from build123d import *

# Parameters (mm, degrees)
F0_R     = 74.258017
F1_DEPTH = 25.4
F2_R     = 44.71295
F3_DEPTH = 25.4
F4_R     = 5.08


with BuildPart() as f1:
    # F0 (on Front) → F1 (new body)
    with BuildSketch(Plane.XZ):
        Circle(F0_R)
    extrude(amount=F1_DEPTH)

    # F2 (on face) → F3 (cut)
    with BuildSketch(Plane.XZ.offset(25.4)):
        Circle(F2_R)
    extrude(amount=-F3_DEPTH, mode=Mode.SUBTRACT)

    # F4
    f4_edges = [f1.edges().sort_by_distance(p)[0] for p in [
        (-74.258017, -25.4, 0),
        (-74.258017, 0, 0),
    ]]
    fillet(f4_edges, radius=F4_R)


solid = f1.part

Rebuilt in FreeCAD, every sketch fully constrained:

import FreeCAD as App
import Part
import Sketcher
from FreeCAD import Vector
Q = App.Units.Quantity


def edges_at(feature, points):
    """Names of the edges that pass closest to the given points."""
    edges = feature.Shape.Edges
    near = lambda p: min(range(len(edges)), key=lambda i: edges[i].distToShape(Part.Vertex(*p))[0])
    return sorted({f"Edge{near(p) + 1}" for p in points})

doc = App.newDocument("Part")
body = doc.addObject("PartDesign::Body", "Body")

# Sketch on XZ plane
sketch1 = doc.addObject("Sketcher::SketchObject", "Sketch")
body.addObject(sketch1)
sketch1.AttachmentSupport = (doc.XZ_Plane, [""])
sketch1.MapMode = "FlatFace"
sketch1.addGeometry(Part.Circle(Vector(0, 0, 0), Vector(0, 0, 1), 74), False)
sketch1.addConstraint(Sketcher.Constraint("Coincident", 0, 3, -1, 1))
sketch1.addConstraint(Sketcher.Constraint("Diameter", 0, 148.516034))
pad1 = doc.addObject("PartDesign::Pad", "Pad")
body.addObject(pad1)
pad1.Profile = sketch1
pad1.Length = Q("1 in")

# Sketch on XZ plane
sketch2 = doc.addObject("Sketcher::SketchObject", "Sketch001")
body.addObject(sketch2)
sketch2.AttachmentSupport = (doc.XZ_Plane, [""])
sketch2.MapMode = "FlatFace"
sketch2.AttachmentOffset = App.Placement(Vector(0, 0, 1 * 25.4), App.Rotation())
sketch2.addGeometry(Part.Circle(Vector(0, 0, 0), Vector(0, 0, 1), 45), False)
sketch2.addConstraint(Sketcher.Constraint("Coincident", 0, 3, -1, 1))
sketch2.addConstraint(Sketcher.Constraint("Diameter", 0, 89.4259))
pocket1 = doc.addObject("PartDesign::Pocket", "Pocket")
body.addObject(pocket1)
pocket1.Profile = sketch2
pocket1.Length = Q("1 in")
doc.recompute()

fillet = doc.addObject("PartDesign::Fillet", "Fillet")
body.addObject(fillet)
fillet.Base = (pocket1, edges_at(pocket1, [(-74.258, -25.4, 0), (-74.258, 0, 0)]))
fillet.Radius = Q("0.2 in")

doc.recompute()
